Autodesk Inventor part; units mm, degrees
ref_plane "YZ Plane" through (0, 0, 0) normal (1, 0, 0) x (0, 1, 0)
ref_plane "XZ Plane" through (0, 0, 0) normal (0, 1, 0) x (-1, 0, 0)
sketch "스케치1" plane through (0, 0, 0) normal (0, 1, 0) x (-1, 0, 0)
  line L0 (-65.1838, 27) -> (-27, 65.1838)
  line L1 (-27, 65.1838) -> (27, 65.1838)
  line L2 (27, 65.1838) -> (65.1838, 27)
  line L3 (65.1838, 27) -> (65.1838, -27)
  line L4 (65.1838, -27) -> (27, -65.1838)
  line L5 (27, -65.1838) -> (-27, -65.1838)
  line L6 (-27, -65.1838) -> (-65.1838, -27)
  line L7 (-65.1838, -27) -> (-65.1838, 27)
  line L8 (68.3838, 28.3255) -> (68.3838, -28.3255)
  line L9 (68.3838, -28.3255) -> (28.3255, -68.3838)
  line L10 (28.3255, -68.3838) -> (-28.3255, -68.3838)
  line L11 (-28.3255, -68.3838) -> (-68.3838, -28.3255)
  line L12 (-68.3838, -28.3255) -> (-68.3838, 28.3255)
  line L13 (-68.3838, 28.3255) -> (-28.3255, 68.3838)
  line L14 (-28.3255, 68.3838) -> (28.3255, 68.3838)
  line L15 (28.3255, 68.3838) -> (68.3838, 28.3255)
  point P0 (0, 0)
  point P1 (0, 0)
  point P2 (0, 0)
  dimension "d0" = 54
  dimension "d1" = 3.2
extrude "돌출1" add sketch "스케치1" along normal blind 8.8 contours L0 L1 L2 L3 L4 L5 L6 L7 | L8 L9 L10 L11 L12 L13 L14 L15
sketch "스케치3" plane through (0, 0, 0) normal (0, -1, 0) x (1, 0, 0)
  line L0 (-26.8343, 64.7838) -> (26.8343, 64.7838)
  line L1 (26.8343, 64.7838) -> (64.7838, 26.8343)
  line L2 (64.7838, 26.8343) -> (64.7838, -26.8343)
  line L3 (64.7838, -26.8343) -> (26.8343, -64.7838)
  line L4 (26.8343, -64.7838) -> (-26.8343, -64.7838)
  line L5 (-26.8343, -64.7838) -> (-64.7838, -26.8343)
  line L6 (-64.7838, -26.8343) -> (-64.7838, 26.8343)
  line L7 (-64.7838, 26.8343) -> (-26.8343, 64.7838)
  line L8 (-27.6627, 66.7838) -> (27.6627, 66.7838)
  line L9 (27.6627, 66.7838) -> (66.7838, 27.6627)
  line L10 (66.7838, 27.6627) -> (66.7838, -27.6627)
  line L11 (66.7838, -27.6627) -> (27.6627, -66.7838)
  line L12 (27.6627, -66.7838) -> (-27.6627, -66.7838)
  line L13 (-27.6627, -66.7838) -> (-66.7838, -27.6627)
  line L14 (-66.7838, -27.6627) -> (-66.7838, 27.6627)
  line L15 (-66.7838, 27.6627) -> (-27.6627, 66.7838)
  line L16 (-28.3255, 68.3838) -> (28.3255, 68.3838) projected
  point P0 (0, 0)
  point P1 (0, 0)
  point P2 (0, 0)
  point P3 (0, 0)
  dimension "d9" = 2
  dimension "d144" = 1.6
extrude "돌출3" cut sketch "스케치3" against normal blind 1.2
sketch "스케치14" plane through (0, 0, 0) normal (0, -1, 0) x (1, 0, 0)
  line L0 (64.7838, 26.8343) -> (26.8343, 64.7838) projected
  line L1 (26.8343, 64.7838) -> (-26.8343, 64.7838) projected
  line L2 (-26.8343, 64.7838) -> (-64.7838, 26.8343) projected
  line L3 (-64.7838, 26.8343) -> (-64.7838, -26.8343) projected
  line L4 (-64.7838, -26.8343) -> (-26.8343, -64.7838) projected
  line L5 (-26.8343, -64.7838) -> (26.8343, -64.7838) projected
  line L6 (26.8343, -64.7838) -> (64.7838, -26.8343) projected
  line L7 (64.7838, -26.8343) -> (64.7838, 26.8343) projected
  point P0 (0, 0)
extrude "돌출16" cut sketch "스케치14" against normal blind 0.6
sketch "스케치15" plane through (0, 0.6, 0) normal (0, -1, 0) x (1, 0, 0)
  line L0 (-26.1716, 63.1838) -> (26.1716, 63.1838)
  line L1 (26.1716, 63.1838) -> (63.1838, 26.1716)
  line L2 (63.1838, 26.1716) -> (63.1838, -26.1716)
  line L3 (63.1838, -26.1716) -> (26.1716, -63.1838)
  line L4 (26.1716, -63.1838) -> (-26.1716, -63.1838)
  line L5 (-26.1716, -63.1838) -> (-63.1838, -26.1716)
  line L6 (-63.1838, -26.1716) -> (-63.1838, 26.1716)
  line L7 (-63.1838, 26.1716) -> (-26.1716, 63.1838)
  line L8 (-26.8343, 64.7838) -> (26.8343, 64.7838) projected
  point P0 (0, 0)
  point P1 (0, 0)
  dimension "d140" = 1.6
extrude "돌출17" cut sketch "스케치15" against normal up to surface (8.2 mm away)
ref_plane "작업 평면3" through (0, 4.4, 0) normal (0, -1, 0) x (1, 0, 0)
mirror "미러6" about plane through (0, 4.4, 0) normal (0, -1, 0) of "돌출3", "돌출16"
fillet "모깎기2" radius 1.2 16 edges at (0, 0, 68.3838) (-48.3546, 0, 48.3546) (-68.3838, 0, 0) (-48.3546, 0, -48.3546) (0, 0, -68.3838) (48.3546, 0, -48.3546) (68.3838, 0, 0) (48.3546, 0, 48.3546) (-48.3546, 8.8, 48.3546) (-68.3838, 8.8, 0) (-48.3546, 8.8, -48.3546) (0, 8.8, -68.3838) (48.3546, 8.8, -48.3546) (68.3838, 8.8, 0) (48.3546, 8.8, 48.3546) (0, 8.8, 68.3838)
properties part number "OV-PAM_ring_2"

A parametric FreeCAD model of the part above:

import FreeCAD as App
import Part
import Sketcher
from FreeCAD import Vector
Q = App.Units.Quantity


def edges_at(feature, points):
    """Names of the edges that pass closest to the given points."""
    edges = feature.Shape.Edges
    near = lambda p: min(range(len(edges)), key=lambda i: edges[i].distToShape(Part.Vertex(*p))[0])
    return sorted({f"Edge{near(p) + 1}" for p in points})


def add_polygon(sketch, points):
    """Adds a closed chain of lines whose ends are joined by coincident constraints."""
    first, n = sketch.GeometryCount, len(points)
    for a, b in zip(points, points[1:] + points[:1]):
        sketch.addGeometry(Part.LineSegment(App.Vector(*a, 0), App.Vector(*b, 0)), False)
    for i in range(n):
        sketch.addConstraint(Sketcher.Constraint("Coincident", first + i, 2, first + (i + 1) % n, 1))

doc = App.newDocument("Part")
body = doc.addObject("PartDesign::Body", "Body")

# Sketch on XZ plane
sketch1 = body.newObject("Sketcher::SketchObject", "Sketch")
sketch1.AttachmentSupport = (doc.getObject("XZ_Plane"), [""])
sketch1.MapMode = "FlatFace"
add_polygon(sketch1, [(-68, -28), (-68, 28), (-28, 68), (28, 68), (68, 28), (68, -28), (28, -68), (-28, -68)])  # lines 0-7
sketch1.addConstraint(Sketcher.Constraint("Vertical", 0))
sketch1.addConstraint(Sketcher.Constraint("Horizontal", 2))
sketch1.addConstraint(Sketcher.Constraint("Vertical", 4))
sketch1.addConstraint(Sketcher.Constraint("Horizontal", 6))
sketch1.addConstraint(Sketcher.Constraint("Symmetric", 0, 2, 4, 2, -1, 1))
sketch1.addConstraint(Sketcher.Constraint("Symmetric", 1, 2, 5, 2, -1, 1))
sketch1.addConstraint(Sketcher.Constraint("Perpendicular", 1, 3))
sketch1.addConstraint(Sketcher.Constraint("Perpendicular", 5, 7))
sketch1.addConstraint(Sketcher.Constraint("Horizontal", 0, 2, 3, 2))
sketch1.addConstraint(Sketcher.Constraint("Horizontal", 4, 2, 7, 2))
sketch1.addConstraint(Sketcher.Constraint("Vertical", 2, 2, 5, 2))
sketch1.addConstraint(Sketcher.Constraint("Equal", 6, 0))
sketch1.addConstraint(Sketcher.Constraint("DistanceX", 2, 1, 2, 2, Q("56.651 mm")))
sketch1.addConstraint(Sketcher.Constraint("Distance", 1, Q("56.651 mm")))
pad1 = body.newObject("PartDesign::Pad", "Pad")
pad1.Profile = sketch1
pad1.Length = 8.8
pad1.Reversed = True

# Sketch on XZ plane
sketch2 = body.newObject("Sketcher::SketchObject", "Sketch001")
sketch2.AttachmentSupport = (doc.getObject("XZ_Plane"), [""])
sketch2.MapMode = "FlatFace"
add_polygon(sketch2, [(28, 67), (-28, 67), (-67, 28), (-67, -28), (-28, -67), (28, -67), (67, -28), (67, 28)])  # lines 0-7
add_polygon(sketch2, [(-65, 27), (-27, 65), (27, 65), (65, 27), (65, -27), (27, -65), (-27, -65), (-65, -27)])  # lines 8-15
sketch2.addConstraint(Sketcher.Constraint("Horizontal", 0))
sketch2.addConstraint(Sketcher.Constraint("Vertical", 2))
sketch2.addConstraint(Sketcher.Constraint("Horizontal", 4))
sketch2.addConstraint(Sketcher.Constraint("Vertical", 6))
sketch2.addConstraint(Sketcher.Constraint("Horizontal", 9))
sketch2.addConstraint(Sketcher.Constraint("Vertical", 11))
sketch2.addConstraint(Sketcher.Constraint("Horizontal", 13))
sketch2.addConstraint(Sketcher.Constraint("Vertical", 15))
sketch2.addConstraint(Sketcher.Constraint("Symmetric", 0, 2, 4, 2, -1, 1))
sketch2.addConstraint(Sketcher.Constraint("Symmetric", 1, 2, 5, 2, -1, 1))
sketch2.addConstraint(Sketcher.Constraint("Symmetric", 8, 2, 12, 2, -1, 1))
sketch2.addConstraint(Sketcher.Constraint("Symmetric", 10, 2, 14, 2, -1, 1))
sketch2.addConstraint(Sketcher.Constraint("Perpendicular", 1, 3))
sketch2.addConstraint(Sketcher.Constraint("Perpendicular", 5, 7))
sketch2.addConstraint(Sketcher.Constraint("Perpendicular", 7, 8))
sketch2.addConstraint(Sketcher.Constraint("Perpendicular", 8, 10))
sketch2.addConstraint(Sketcher.Constraint("Perpendicular", 10, 12))
sketch2.addConstraint(Sketcher.Constraint("Perpendicular", 12, 14))
sketch2.addConstraint(Sketcher.Constraint("Horizontal", 2, 2, 5, 2))
sketch2.addConstraint(Sketcher.Constraint("Horizontal", 1, 2, 6, 2))
sketch2.addConstraint(Sketcher.Constraint("Horizontal", 11, 2, 14, 2))
sketch2.addConstraint(Sketcher.Constraint("Vertical", 0, 2, 3, 2))
sketch2.addConstraint(Sketcher.Constraint("Equal", 4, 2))
sketch2.addConstraint(Sketcher.Constraint("Equal", 13, 11))
sketch2.addConstraint(Sketcher.Constraint("DistanceY", 8, 2, 0, 2, Q("2 mm")))
sketch2.addConstraint(Sketcher.Constraint("DistanceX", 0, 2, 0, 1, Q("55.3254 mm")))
sketch2.addConstraint(Sketcher.Constraint("DistanceX", 9, 1, 9, 2, Q("53.6686 mm")))
sketch2.addConstraint(Sketcher.Constraint("DistanceX", 1, 2, 0, 2, Q("39.121 mm")))
pocket1 = body.newObject("PartDesign::Pocket", "Pocket")
pocket1.Profile = sketch2
pocket1.Length = 1.2

# Sketch on XZ plane
sketch3 = body.newObject("Sketcher::SketchObject", "Sketch002")
sketch3.AttachmentSupport = (doc.getObject("XZ_Plane"), [""])
sketch3.MapMode = "FlatFace"
add_polygon(sketch3, [(65, -27), (65, 27), (27, 65), (-27, 65), (-65, 27), (-65, -27), (-27, -65), (27, -65)])  # lines 0-7
sketch3.addConstraint(Sketcher.Constraint("Vertical", 0))
sketch3.addConstraint(Sketcher.Constraint("Horizontal", 2))
sketch3.addConstraint(Sketcher.Constraint("Vertical", 4))
sketch3.addConstraint(Sketcher.Constraint("Horizontal", 6))
sketch3.addConstraint(Sketcher.Constraint("Symmetric", 0, 2, 4, 2, -1, 1))
sketch3.addConstraint(Sketcher.Constraint("Symmetric", 1, 2, 5, 2, -1, 1))
sketch3.addConstraint(Sketcher.Constraint("Perpendicular", 1, 3))
sketch3.addConstraint(Sketcher.Constraint("Perpendicular", 5, 7))
sketch3.addConstraint(Sketcher.Constraint("Horizontal", 0, 2, 3, 2))
sketch3.addConstraint(Sketcher.Constraint("Horizontal", 4, 2, 7, 2))
sketch3.addConstraint(Sketcher.Constraint("Vertical", 2, 2, 5, 2))
sketch3.addConstraint(Sketcher.Constraint("Equal", 6, 0))
sketch3.addConstraint(Sketcher.Constraint("DistanceX", 2, 2, 2, 1, Q("53.6686 mm")))
sketch3.addConstraint(Sketcher.Constraint("DistanceX", 2, 2, 0, 2, Q("91.618 mm")))
pocket2 = body.newObject("PartDesign::Pocket", "Pocket001")
pocket2.Profile = sketch3
pocket2.Length = 0.6

# Sketch on XZ plane
sketch4 = body.newObject("Sketcher::SketchObject", "Sketch003")
sketch4.AttachmentSupport = (doc.getObject("XZ_Plane"), [""])
sketch4.MapMode = "FlatFace"
sketch4.AttachmentOffset = App.Placement(Vector(0, 0, -0.6), App.Rotation())
add_polygon(sketch4, [(26, 63), (-26, 63), (-63, 26), (-63, -26), (-26, -63), (26, -63), (63, -26), (63, 26)])  # lines 0-7
sketch4.addConstraint(Sketcher.Constraint("Horizontal", 0))
sketch4.addConstraint(Sketcher.Constraint("Vertical", 2))
sketch4.addConstraint(Sketcher.Constraint("Horizontal", 4))
sketch4.addConstraint(Sketcher.Constraint("Vertical", 6))
sketch4.addConstraint(Sketcher.Constraint("Symmetric", 0, 2, 4, 2, -1, 1))
sketch4.addConstraint(Sketcher.Constraint("Symmetric", 1, 2, 5, 2, -1, 1))
sketch4.addConstraint(Sketcher.Constraint("Perpendicular", 1, 3))
sketch4.addConstraint(Sketcher.Constraint("Perpendicular", 5, 7))
sketch4.addConstraint(Sketcher.Constraint("Horizontal", 2, 2, 5, 2))
sketch4.addConstraint(Sketcher.Constraint("Horizontal", 1, 2, 6, 2))
sketch4.addConstraint(Sketcher.Constraint("Vertical", 0, 2, 3, 2))
sketch4.addConstraint(Sketcher.Constraint("Equal", 4, 2))
sketch4.addConstraint(Sketcher.Constraint("DistanceX", 0, 2, 0, 1, Q("52.3432 mm")))
sketch4.addConstraint(Sketcher.Constraint("Distance", 1, Q("52.3432 mm")))
pocket3 = body.newObject("PartDesign::Pocket", "Pocket002")
pocket3.Profile = sketch4
pocket3.Length = 8.2
doc.recompute()

datumplane = body.newObject("PartDesign::Plane", "DatumPlane")
datumplane.AttachmentSupport = (doc.getObject("XZ_Plane"), [""])
datumplane.MapMode = "FlatFace"
datumplane.AttachmentOffset = App.Placement(Vector(0, 0, -4.4), App.Rotation())
mirrored = body.newObject("PartDesign::Mirrored", "Mirrored")
mirrored.Originals = [pocket1, pocket2]
mirrored.MirrorPlane = (datumplane, [""])
body.Tip = mirrored
doc.recompute()

fillet = body.newObject("PartDesign::Fillet", "Fillet")
fillet.Base = (mirrored, edges_at(mirrored, [
    (0, 0, 68.384),
    (-48.355, 0, 48.355),
    (-68.384, 0, 0),
    (-48.355, 0, -48.355),
    (0, 0, -68.384),
    (48.355, 0, -48.355),
    (68.384, 0, 0),
    (48.355, 0, 48.355),
    (-48.355, 8.8, 48.355),
    (-68.384, 8.8, 0),
    (-48.355, 8.8, -48.355),
    (0, 8.8, -68.384),
    (48.355, 8.8, -48.355),
    (68.384, 8.8, 0),
    (48.355, 8.8, 48.355),
    (0, 8.8, 68.384),
]))
fillet.Radius = 1.2

doc.recompute()
